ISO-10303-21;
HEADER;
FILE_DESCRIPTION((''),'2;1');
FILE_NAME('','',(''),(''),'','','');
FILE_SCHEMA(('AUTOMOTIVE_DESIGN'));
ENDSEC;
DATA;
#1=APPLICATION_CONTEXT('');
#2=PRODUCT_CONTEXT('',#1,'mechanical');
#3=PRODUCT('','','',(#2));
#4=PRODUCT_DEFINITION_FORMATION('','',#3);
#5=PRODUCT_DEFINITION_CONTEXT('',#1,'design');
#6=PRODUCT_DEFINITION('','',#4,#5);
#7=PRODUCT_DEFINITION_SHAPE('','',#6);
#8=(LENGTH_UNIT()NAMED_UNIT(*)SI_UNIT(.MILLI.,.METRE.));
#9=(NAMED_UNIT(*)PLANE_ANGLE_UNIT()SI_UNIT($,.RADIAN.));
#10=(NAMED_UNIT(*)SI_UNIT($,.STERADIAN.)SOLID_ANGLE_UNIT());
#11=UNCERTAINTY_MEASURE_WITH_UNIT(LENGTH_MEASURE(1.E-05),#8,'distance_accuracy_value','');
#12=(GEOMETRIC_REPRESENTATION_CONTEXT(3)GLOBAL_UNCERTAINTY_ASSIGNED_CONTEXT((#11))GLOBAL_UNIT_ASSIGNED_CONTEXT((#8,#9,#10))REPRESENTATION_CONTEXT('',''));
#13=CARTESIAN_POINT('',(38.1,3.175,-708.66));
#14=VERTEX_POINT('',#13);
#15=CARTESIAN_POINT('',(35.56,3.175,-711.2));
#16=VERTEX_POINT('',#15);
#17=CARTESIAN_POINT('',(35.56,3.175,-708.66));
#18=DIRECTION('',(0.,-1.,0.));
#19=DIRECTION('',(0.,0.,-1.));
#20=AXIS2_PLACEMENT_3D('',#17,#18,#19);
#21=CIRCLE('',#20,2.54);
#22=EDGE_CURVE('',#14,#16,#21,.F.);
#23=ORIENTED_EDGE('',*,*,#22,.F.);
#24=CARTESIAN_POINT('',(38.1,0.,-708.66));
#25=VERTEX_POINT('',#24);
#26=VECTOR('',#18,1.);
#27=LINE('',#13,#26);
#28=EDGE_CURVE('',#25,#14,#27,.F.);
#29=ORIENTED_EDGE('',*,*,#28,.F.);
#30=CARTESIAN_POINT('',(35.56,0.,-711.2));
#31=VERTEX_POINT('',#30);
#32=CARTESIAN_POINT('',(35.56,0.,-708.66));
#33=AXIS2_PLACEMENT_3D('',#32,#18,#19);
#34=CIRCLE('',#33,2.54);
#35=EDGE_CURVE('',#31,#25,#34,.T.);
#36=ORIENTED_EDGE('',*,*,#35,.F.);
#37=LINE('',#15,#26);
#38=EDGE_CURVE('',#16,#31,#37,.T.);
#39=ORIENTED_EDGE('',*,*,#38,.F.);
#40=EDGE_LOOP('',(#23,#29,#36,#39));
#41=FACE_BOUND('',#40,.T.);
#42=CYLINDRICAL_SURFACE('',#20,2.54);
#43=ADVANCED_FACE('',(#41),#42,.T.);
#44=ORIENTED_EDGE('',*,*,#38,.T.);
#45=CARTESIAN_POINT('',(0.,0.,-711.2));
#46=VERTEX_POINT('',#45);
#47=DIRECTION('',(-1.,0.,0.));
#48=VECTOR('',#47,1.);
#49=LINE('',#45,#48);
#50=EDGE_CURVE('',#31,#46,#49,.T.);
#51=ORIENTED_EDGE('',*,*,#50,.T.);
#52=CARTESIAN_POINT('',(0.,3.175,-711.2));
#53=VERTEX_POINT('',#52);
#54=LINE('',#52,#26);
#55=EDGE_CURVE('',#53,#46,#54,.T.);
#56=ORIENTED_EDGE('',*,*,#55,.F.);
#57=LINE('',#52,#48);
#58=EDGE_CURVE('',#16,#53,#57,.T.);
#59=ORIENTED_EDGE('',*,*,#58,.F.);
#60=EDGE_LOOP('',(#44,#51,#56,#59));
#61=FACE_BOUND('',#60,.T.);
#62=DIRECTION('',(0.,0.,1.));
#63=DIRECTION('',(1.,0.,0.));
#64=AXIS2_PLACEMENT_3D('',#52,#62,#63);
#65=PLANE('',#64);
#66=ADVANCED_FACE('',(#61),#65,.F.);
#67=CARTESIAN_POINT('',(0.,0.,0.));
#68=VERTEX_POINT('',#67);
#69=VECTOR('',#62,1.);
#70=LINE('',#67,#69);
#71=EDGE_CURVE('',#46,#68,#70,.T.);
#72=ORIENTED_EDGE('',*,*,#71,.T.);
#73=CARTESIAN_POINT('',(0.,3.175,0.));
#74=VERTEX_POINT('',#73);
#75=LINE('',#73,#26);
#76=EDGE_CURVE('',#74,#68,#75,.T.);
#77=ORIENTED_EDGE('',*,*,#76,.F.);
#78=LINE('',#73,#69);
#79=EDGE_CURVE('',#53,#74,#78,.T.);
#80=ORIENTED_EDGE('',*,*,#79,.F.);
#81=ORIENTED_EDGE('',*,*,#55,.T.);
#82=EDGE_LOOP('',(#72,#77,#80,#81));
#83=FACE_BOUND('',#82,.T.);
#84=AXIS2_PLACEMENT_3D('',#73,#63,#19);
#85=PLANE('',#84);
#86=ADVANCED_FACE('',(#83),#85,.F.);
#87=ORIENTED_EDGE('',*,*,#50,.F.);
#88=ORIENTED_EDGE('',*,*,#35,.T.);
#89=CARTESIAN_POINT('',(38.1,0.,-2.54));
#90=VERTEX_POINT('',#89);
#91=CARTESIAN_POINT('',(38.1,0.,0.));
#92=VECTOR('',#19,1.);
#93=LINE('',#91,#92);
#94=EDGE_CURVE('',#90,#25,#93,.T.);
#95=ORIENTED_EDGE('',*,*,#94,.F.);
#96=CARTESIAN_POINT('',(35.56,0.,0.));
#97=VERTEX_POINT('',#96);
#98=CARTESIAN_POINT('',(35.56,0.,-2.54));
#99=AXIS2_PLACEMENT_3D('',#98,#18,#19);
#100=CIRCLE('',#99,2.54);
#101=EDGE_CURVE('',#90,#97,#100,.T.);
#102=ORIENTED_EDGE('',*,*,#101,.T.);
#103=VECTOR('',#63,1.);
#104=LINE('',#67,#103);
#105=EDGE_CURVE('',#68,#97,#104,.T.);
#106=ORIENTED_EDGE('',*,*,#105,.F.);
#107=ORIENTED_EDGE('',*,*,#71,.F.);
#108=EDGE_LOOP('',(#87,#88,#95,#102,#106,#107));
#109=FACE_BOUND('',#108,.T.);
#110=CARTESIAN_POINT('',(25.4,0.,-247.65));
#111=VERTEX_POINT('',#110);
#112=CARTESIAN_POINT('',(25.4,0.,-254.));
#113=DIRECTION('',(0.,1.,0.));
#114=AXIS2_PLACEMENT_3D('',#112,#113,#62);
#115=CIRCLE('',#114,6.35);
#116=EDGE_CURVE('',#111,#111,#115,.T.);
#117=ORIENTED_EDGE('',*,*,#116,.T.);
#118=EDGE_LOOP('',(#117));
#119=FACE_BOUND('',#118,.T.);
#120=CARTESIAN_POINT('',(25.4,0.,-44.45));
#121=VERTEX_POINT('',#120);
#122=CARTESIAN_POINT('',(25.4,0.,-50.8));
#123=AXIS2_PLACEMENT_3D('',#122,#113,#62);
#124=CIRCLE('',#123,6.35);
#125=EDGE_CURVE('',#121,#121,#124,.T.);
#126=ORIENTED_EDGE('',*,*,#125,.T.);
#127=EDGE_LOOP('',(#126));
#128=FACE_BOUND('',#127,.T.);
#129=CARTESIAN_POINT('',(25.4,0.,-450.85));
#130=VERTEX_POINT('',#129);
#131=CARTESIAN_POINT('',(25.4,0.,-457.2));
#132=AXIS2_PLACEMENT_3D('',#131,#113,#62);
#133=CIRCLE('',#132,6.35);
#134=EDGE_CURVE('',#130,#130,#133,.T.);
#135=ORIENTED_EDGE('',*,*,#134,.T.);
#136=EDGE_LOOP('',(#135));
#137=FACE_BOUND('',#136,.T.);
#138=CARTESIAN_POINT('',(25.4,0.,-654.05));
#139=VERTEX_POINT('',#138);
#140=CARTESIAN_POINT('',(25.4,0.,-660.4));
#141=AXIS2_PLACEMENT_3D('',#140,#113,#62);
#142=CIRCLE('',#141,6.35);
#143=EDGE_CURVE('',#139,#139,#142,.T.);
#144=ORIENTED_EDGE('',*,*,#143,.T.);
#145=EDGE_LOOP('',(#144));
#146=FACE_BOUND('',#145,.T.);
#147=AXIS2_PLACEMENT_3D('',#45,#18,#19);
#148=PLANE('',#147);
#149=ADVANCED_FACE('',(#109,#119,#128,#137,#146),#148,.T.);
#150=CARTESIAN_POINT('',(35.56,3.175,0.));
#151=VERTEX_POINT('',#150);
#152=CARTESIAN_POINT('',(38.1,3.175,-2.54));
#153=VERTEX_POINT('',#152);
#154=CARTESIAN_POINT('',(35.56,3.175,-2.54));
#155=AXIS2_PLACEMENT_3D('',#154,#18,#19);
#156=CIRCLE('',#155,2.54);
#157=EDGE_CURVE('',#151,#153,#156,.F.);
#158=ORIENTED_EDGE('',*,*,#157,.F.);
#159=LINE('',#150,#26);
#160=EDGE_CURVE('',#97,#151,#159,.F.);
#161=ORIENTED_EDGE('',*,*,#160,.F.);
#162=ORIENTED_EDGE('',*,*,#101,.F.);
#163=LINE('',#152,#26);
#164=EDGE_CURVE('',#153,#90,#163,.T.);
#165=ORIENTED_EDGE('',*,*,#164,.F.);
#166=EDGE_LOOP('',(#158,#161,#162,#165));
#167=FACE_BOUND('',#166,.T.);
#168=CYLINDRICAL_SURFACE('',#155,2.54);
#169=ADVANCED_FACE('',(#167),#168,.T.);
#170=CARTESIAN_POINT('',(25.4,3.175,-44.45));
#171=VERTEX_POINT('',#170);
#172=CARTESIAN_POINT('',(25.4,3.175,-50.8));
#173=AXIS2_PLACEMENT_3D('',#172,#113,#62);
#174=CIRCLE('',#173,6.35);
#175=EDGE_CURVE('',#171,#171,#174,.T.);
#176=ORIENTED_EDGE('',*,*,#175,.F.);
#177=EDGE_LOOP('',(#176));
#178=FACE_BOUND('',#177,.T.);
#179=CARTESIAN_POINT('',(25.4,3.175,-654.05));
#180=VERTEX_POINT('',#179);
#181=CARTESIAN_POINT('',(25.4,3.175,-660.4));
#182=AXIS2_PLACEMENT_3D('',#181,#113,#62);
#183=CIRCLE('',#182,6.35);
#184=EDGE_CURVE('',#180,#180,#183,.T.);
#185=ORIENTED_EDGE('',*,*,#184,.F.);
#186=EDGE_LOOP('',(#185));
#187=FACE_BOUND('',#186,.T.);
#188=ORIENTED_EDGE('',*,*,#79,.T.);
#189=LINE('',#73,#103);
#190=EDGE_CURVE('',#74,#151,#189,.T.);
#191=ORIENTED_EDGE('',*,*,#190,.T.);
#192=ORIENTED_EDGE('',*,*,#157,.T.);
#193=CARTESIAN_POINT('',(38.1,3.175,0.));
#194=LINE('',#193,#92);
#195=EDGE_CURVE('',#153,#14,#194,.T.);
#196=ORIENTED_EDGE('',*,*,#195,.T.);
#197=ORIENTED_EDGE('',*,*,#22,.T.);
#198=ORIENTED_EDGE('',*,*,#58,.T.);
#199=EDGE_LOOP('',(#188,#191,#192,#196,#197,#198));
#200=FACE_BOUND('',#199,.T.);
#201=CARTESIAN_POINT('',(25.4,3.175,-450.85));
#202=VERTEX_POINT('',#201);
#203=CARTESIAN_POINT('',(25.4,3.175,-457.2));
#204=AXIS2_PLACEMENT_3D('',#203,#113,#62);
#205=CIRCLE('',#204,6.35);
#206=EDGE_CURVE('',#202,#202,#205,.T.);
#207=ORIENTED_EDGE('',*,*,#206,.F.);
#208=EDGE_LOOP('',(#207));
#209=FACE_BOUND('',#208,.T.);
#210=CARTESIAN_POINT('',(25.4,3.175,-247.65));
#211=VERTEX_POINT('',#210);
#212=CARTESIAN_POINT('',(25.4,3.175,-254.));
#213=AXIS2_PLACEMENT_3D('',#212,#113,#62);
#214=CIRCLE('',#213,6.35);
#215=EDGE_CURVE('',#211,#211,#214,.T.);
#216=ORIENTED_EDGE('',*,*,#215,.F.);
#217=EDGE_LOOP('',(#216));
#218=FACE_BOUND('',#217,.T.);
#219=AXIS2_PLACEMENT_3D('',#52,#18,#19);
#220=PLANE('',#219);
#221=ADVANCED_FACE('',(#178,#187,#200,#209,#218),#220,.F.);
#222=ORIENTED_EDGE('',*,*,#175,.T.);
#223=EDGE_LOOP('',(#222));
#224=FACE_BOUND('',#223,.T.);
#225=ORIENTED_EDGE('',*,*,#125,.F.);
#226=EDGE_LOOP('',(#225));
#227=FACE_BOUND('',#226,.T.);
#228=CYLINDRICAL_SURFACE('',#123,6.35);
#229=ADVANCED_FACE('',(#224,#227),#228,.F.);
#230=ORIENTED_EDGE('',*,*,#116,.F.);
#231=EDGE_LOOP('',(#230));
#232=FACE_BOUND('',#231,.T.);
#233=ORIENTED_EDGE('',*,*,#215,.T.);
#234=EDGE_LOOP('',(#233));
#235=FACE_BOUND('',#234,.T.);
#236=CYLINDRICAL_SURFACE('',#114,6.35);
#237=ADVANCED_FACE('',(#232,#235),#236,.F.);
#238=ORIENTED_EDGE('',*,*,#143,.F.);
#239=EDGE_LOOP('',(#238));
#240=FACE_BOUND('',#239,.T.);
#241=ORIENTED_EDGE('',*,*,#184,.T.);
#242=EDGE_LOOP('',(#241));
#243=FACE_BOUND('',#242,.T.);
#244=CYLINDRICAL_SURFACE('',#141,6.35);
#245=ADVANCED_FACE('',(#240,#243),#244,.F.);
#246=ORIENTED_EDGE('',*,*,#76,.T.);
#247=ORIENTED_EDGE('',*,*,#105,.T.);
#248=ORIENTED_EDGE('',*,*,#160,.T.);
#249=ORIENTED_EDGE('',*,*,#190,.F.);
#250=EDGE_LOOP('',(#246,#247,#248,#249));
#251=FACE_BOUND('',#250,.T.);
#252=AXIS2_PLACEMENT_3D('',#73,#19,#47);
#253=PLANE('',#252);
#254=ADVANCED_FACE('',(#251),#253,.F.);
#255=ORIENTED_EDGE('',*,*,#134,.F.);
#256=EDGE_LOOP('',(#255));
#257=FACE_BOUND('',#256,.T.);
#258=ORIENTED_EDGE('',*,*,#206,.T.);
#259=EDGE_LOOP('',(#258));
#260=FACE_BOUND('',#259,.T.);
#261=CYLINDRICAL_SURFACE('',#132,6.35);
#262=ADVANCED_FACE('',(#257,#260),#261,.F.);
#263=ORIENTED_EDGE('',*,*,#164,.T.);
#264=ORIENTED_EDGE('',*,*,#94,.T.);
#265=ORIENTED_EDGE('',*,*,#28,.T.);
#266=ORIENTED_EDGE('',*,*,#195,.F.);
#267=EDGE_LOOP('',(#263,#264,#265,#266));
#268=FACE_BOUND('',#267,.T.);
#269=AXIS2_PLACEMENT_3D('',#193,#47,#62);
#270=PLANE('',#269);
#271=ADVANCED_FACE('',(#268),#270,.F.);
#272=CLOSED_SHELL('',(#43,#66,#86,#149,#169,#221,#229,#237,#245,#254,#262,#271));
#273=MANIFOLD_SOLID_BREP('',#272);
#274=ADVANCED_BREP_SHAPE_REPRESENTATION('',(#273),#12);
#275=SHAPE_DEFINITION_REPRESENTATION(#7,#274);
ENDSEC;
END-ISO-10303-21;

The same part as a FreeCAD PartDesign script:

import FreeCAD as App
import Part
import Sketcher
Q = App.Units.Quantity


def edges_at(feature, points):
    """Names of the edges that pass closest to the given points."""
    edges = feature.Shape.Edges
    near = lambda p: min(range(len(edges)), key=lambda i: edges[i].distToShape(Part.Vertex(*p))[0])
    return sorted({f"Edge{near(p) + 1}" for p in points})


def add_polygon(sketch, points):
    """Adds a closed chain of lines whose ends are joined by coincident constraints."""
    first, n = sketch.GeometryCount, len(points)
    for a, b in zip(points, points[1:] + points[:1]):
        sketch.addGeometry(Part.LineSegment(App.Vector(*a, 0), App.Vector(*b, 0)), False)
    for i in range(n):
        sketch.addConstraint(Sketcher.Constraint("Coincident", first + i, 2, first + (i + 1) % n, 1))

doc = App.newDocument("Part")
body = doc.addObject("PartDesign::Body", "Body")

# Sketch on XZ plane
sketch1 = body.newObject("Sketcher::SketchObject", "Sketch")
sketch1.AttachmentSupport = (doc.getObject("XZ_Plane"), [""])
sketch1.MapMode = "FlatFace"
add_polygon(sketch1, [(0, -711), (0, 0), (38, 0), (38, -711)])  # lines 0-3
sketch1.addConstraint(Sketcher.Constraint("Vertical", 0))
sketch1.addConstraint(Sketcher.Constraint("Horizontal", 1))
sketch1.addConstraint(Sketcher.Constraint("Vertical", 2))
sketch1.addConstraint(Sketcher.Constraint("Horizontal", 3))
sketch1.addConstraint(Sketcher.Constraint("Coincident", 0, 2, -1, 1))
sketch1.addConstraint(Sketcher.Constraint("DistanceY", 0, 1, 0, 2, Q("28 in")))
sketch1.addConstraint(Sketcher.Constraint("DistanceX", 1, 1, 1, 2, Q("1.5 in")))
pad1 = body.newObject("PartDesign::Pad", "Pad")
pad1.Profile = sketch1
pad1.Length = Q("0.125 in")
pad1.Reversed = True
doc.recompute()

fillet = body.newObject("PartDesign::Fillet", "Fillet")
fillet.Base = (pad1, edges_at(pad1, [(38.1, 1.587, -711.2), (38.1, 1.587, 0)]))
fillet.Radius = Q("0.1 in")

# Sketch on XZ plane
sketch2 = body.newObject("Sketcher::SketchObject", "Sketch001")
sketch2.AttachmentSupport = (doc.getObject("XZ_Plane"), [""])
sketch2.MapMode = "FlatFace"
sketch2.AttachmentOffset = App.Placement(App.Vector(0, 0, -0.125 * 25.4), App.Rotation())
sketch2.addGeometry(Part.Circle(App.Vector(25, -660, 0), App.Vector(0, 0, 1), 6), False)
sketch2.addGeometry(Part.Circle(App.Vector(25, -457, 0), App.Vector(0, 0, 1), 6), False)
sketch2.addGeometry(Part.Circle(App.Vector(25, -254, 0), App.Vector(0, 0, 1), 6), False)
sketch2.addGeometry(Part.Circle(App.Vector(25, -51, 0), App.Vector(0, 0, 1), 6), False)
sketch2.addConstraint(Sketcher.Constraint("Equal", 0, 1))
sketch2.addConstraint(Sketcher.Constraint("Equal", 1, 2))
sketch2.addConstraint(Sketcher.Constraint("Equal", 2, 3))
sketch2.addConstraint(Sketcher.Constraint("Vertical", 0, 3, 1, 3))
sketch2.addConstraint(Sketcher.Constraint("Vertical", 1, 3, 2, 3))
sketch2.addConstraint(Sketcher.Constraint("Vertical", 2, 3, 3, 3))
sketch2.addConstraint(Sketcher.Constraint("Diameter", 0, Q("0.5 in")))
sketch2.addConstraint(Sketcher.Constraint("DistanceX", -1, 1, 0, 3, Q("1 in")))
sketch2.addConstraint(Sketcher.Constraint("DistanceY", 0, 3, -1, 1, Q("26 in")))
sketch2.addConstraint(Sketcher.Constraint("DistanceY", 1, 3, -1, 1, Q("18 in")))
sketch2.addConstraint(Sketcher.Constraint("DistanceY", 2, 3, -1, 1, Q("10 in")))
sketch2.addConstraint(Sketcher.Constraint("DistanceY", 3, 3, -1, 1, Q("2 in")))
pocket1 = body.newObject("PartDesign::Pocket", "Pocket")
pocket1.Profile = sketch2
pocket1.Type = "ThroughAll"
pocket1.Reversed = True

doc.recompute()
